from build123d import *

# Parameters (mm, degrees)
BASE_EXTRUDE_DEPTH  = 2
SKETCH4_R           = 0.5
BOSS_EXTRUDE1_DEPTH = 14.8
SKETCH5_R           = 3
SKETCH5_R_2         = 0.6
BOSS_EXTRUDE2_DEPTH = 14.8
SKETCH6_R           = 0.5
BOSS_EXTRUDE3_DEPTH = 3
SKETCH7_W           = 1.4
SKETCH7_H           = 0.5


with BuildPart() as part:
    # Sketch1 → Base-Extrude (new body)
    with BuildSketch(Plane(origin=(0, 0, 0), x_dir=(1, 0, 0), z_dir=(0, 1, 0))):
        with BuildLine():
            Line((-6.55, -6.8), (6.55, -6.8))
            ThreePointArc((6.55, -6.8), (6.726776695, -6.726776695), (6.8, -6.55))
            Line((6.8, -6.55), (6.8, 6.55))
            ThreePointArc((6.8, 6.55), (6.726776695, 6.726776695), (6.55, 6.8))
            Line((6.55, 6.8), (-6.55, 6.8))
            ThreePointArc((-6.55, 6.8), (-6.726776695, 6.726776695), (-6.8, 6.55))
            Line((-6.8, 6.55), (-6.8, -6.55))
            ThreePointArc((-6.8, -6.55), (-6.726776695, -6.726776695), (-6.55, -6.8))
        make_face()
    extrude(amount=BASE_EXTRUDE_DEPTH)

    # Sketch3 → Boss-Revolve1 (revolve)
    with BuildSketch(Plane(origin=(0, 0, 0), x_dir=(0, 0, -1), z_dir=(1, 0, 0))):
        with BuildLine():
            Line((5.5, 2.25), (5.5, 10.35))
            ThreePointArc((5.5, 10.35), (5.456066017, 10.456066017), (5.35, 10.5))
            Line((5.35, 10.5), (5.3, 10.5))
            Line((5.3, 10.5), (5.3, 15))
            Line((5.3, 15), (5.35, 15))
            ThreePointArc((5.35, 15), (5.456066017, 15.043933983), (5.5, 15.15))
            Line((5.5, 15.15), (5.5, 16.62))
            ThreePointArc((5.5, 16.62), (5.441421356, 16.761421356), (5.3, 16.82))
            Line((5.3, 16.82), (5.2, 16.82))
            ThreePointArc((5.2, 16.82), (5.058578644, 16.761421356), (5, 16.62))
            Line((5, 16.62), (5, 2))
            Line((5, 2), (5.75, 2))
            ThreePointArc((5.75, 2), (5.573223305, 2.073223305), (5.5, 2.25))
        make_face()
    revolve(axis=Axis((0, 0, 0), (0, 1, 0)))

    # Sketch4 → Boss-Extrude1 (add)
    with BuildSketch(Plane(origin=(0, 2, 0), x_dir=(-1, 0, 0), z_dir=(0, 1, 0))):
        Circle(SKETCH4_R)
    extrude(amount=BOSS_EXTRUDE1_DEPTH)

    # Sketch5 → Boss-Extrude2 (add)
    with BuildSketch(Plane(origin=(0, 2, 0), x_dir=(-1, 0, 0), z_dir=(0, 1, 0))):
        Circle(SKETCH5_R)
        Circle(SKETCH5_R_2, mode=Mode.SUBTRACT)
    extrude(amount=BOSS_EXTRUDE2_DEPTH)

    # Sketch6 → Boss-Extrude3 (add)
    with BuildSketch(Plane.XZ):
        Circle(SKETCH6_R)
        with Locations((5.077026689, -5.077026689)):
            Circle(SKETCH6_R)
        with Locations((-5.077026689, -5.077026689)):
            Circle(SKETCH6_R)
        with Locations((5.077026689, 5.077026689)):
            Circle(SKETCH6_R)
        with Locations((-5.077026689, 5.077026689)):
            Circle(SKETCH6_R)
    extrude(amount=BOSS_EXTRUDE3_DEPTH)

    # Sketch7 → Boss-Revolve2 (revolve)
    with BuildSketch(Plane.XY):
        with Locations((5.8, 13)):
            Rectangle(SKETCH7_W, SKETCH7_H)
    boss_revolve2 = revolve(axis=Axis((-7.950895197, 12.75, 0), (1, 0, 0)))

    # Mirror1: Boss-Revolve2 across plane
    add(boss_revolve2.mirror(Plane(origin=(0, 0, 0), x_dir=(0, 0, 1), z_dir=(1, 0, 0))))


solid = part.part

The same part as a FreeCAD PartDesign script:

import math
import FreeCAD as App
import Part
import Sketcher

V = App.Vector


def add_polygon(sketch, points):
    """Adds a closed chain of lines whose ends are joined by coincident constraints."""
    first, n = sketch.GeometryCount, len(points)
    for a, b in zip(points, points[1:] + points[:1]):
        sketch.addGeometry(Part.LineSegment(App.Vector(*a, 0), App.Vector(*b, 0)), False)
    for i in range(n):
        sketch.addConstraint(Sketcher.Constraint("Coincident", first + i, 2, first + (i + 1) % n, 1))

doc = App.newDocument("Part")
body = doc.addObject("PartDesign::Body", "Body")

sketch1 = body.newObject("Sketcher::SketchObject", "Sketch")
sketch1.AttachmentSupport = (doc.getObject("XZ_Plane"), [""])
sketch1.MapMode = "FlatFace"
sketch1.addGeometry([
    Part.LineSegment(V(-6.55, 6.8, 0), V(6.55, 6.8, 0)),
    Part.ArcOfCircle(Part.Circle(V(6.55, 6.55, 0), V(0, 0, 1), 0.25), math.radians(0), math.radians(90)),
    Part.LineSegment(V(6.8, 6.55, 0), V(6.8, -6.55, 0)),
    Part.ArcOfCircle(Part.Circle(V(6.55, -6.55, 0), V(0, 0, 1), 0.25), math.radians(-90), math.radians(0)),
    Part.LineSegment(V(6.55, -6.8, 0), V(-6.55, -6.8, 0)),
    Part.ArcOfCircle(Part.Circle(V(-6.55, -6.55, 0), V(0, 0, 1), 0.25), math.radians(-180), math.radians(-90)),
    Part.LineSegment(V(-6.8, -6.55, 0), V(-6.8, 6.55, 0)),
    Part.ArcOfCircle(Part.Circle(V(-6.55, 6.55, 0), V(0, 0, 1), 0.25), math.radians(90), math.radians(180)),
], False)
sketch1.addConstraint([
    Sketcher.Constraint("Tangent", 0, 2, 1, 2),
    Sketcher.Constraint("Tangent", 1, 1, 2, 1),
    Sketcher.Constraint("Tangent", 2, 2, 3, 2),
    Sketcher.Constraint("Tangent", 3, 1, 4, 1),
    Sketcher.Constraint("Tangent", 4, 2, 5, 2),
    Sketcher.Constraint("Tangent", 5, 1, 6, 1),
    Sketcher.Constraint("Tangent", 6, 2, 7, 2),
    Sketcher.Constraint("Tangent", 7, 1, 0, 1),
    Sketcher.Constraint("Horizontal", 0),
    Sketcher.Constraint("Vertical", 2),
    Sketcher.Constraint("Horizontal", 4),
    Sketcher.Constraint("Vertical", 6),
    Sketcher.Constraint("Equal", 1, 3),
    Sketcher.Constraint("Equal", 3, 5),
    Sketcher.Constraint("Equal", 5, 7),
    Sketcher.Constraint("Symmetric", 1, 3, 5, 3, -1, 1),
    Sketcher.Constraint("Equal", 4, 2),
    Sketcher.Constraint("Radius", 1, 0.25),
    Sketcher.Constraint("DistanceX", 0, 1, 0, 2, 13.1),
])
pad1 = body.newObject("PartDesign::Pad", "Pad")
pad1.Profile = sketch1
pad1.Length = 2
pad1.Reversed = True

sketch2 = body.newObject("Sketcher::SketchObject", "Sketch001")
sketch2.AttachmentSupport = (doc.getObject("YZ_Plane"), [""])
sketch2.MapMode = "FlatFace"
sketch2.addGeometry([
    Part.LineSegment(V(2.25, -5.5, 0), V(10.35, -5.5, 0)),
    Part.ArcOfCircle(Part.Circle(V(10.35, -5.35, 0), V(0, 0, 1), 0.15), math.radians(-90), math.radians(0)),
    Part.LineSegment(V(10.5, -5.35, 0), V(10.5, -5.3, 0)),
    Part.LineSegment(V(10.5, -5.3, 0), V(15, -5.3, 0)),
    Part.LineSegment(V(15, -5.3, 0), V(15, -5.35, 0)),
    Part.ArcOfCircle(Part.Circle(V(15.15, -5.35, 0), V(0, 0, 1), 0.15), math.radians(-180), math.radians(-90)),
    Part.LineSegment(V(15.15, -5.5, 0), V(16.62, -5.5, 0)),
    Part.ArcOfCircle(Part.Circle(V(16.62, -5.3, 0), V(0, 0, 1), 0.2), math.radians(-90), math.radians(0)),
    Part.LineSegment(V(16.82, -5.3, 0), V(16.82, -5.2, 0)),
    Part.ArcOfCircle(Part.Circle(V(16.62, -5.2, 0), V(0, 0, 1), 0.2), math.radians(0), math.radians(90)),
    Part.LineSegment(V(16.62, -5, 0), V(2, -5, 0)),
    Part.LineSegment(V(2, -5, 0), V(2, -5.75, 0)),
    Part.ArcOfCircle(Part.Circle(V(2.25, -5.75, 0), V(0, 0, 1), 0.25), math.radians(90), math.radians(180)),
], False)
sketch2.addConstraint([
    Sketcher.Constraint("Tangent", 0, 2, 1, 1),
    Sketcher.Constraint("Tangent", 1, 2, 2, 1),
    Sketcher.Constraint("Coincident", 2, 2, 3, 1),
    Sketcher.Constraint("Coincident", 3, 2, 4, 1),
    Sketcher.Constraint("Tangent", 4, 2, 5, 1),
    Sketcher.Constraint("Tangent", 5, 2, 6, 1),
    Sketcher.Constraint("Tangent", 6, 2, 7, 1),
    Sketcher.Constraint("Tangent", 7, 2, 8, 1),
    Sketcher.Constraint("Tangent", 8, 2, 9, 1),
    Sketcher.Constraint("Tangent", 9, 2, 10, 1),
    Sketcher.Constraint("Coincident", 10, 2, 11, 1),
    Sketcher.Constraint("Tangent", 11, 2, 12, 2),
    Sketcher.Constraint("Tangent", 12, 1, 0, 1),
    Sketcher.Constraint("Horizontal", 0),
    Sketcher.Constraint("Vertical", 2),
    Sketcher.Constraint("Horizontal", 3),
    Sketcher.Constraint("Vertical", 4),
    Sketcher.Constraint("Horizontal", 6),
    Sketcher.Constraint("Vertical", 8),
    Sketcher.Constraint("Horizontal", 10),
    Sketcher.Constraint("Vertical", 11),
    Sketcher.Constraint("Equal", 1, 5),
    Sketcher.Constraint("Equal", 7, 9),
    Sketcher.Constraint("Horizontal", 1, 3, 5, 3),
    Sketcher.Constraint("Horizontal", 7, 3, 2, 2),
    Sketcher.Constraint("Radius", 7, 0.2),
    Sketcher.Constraint("Radius", 1, 0.15),
    Sketcher.Constraint("Radius", 12, 0.25),
    Sketcher.Constraint("DistanceX", 0, 1, 0, 2, 8.1),
    Sketcher.Constraint("DistanceX", 3, 1, 3, 2, 4.5),
    Sketcher.Constraint("DistanceY", 8, 1, 8, 2, 0.1),
    Sketcher.Constraint("DistanceX", -1, 1, 3, 2, 15.0),
    Sketcher.Constraint("DistanceY", 9, 2, -1, 1, 5.0),
    Sketcher.Constraint("DistanceX", 6, 1, 6, 2, 1.47),
])
revolution = body.newObject("PartDesign::Revolution", "Revolution")
revolution.Profile = sketch2
revolution.ReferenceAxis = (sketch2, ["H_Axis"])
revolution.Angle = 360

sketch3 = body.newObject("Sketcher::SketchObject", "Sketch002")
sketch3.AttachmentSupport = (doc.getObject("XZ_Plane"), [""])
sketch3.MapMode = "FlatFace"
sketch3.AttachmentOffset = App.Placement(V(0, 0, -2), App.Rotation())
sketch3.addGeometry(Part.Circle(V(0, 0, 0), V(0, 0, 1), 0.5), False)
sketch3.addConstraint([
    Sketcher.Constraint("Coincident", 0, 3, -1, 1),
    Sketcher.Constraint("Diameter", 0, 1.0),
])
pad2 = body.newObject("PartDesign::Pad", "Pad001")
pad2.Profile = sketch3
pad2.Length = 14.8
pad2.Reversed = True

sketch4 = body.newObject("Sketcher::SketchObject", "Sketch003")
sketch4.AttachmentSupport = (doc.getObject("XZ_Plane"), [""])
sketch4.MapMode = "FlatFace"
sketch4.AttachmentOffset = App.Placement(V(0, 0, -2), App.Rotation())
sketch4.addGeometry([
    Part.Circle(V(0, 0, 0), V(0, 0, 1), 3),
    Part.Circle(V(0, 0, 0), V(0, 0, 1), 0.6),
], False)
sketch4.addConstraint([
    Sketcher.Constraint("Coincident", 0, 3, -1, 1),
    Sketcher.Constraint("Coincident", 1, 3, -1, 1),
    Sketcher.Constraint("Diameter", 0, 6.0),
    Sketcher.Constraint("Diameter", 1, 1.2),
])
pad3 = body.newObject("PartDesign::Pad", "Pad002")
pad3.Profile = sketch4
pad3.Length = 14.8
pad3.Reversed = True

sketch5 = body.newObject("Sketcher::SketchObject", "Sketch004")
sketch5.AttachmentSupport = (doc.getObject("XZ_Plane"), [""])
sketch5.MapMode = "FlatFace"
sketch5.addGeometry([
    Part.Circle(V(0, 0, 0), V(0, 0, 1), 0.5),
    Part.Circle(V(5.1, -5.1, 0), V(0, 0, 1), 0.5),
    Part.Circle(V(-5.1, -5.1, 0), V(0, 0, 1), 0.5),
    Part.Circle(V(5.1, 5.1, 0), V(0, 0, 1), 0.5),
    Part.Circle(V(-5.1, 5.1, 0), V(0, 0, 1), 0.5),
], False)
sketch5.addConstraint([
    Sketcher.Constraint("Coincident", 0, 3, -1, 1),
    Sketcher.Constraint("Equal", 0, 1),
    Sketcher.Constraint("Equal", 1, 2),
    Sketcher.Constraint("Equal", 2, 3),
    Sketcher.Constraint("Equal", 3, 4),
    Sketcher.Constraint("Symmetric", 2, 3, 3, 3, -1, 1),
    Sketcher.Constraint("Symmetric", 1, 3, 4, 3, -1, 1),
    Sketcher.Constraint("Symmetric", 1, 3, 2, 3, -2),
    Sketcher.Constraint("Diameter", 0, 1.0),
    Sketcher.Constraint("DistanceX", -1, 1, 1, 3, 5.077027),
    Sketcher.Constraint("DistanceY", 1, 3, -1, 1, 5.077027),
])
pad4 = body.newObject("PartDesign::Pad", "Pad003")
pad4.Profile = sketch5
pad4.Length = 3

sketch6 = body.newObject("Sketcher::SketchObject", "Sketch005")
sketch6.AttachmentSupport = (doc.getObject("XY_Plane"), [""])
sketch6.MapMode = "FlatFace"
add_polygon(sketch6, [(5.1, 13.2), (5.1, 12.8), (6.5, 12.8), (6.5, 13.2)])
sketch6.addGeometry(Part.LineSegment(V(5.1, 12.8, 0), V(6.5, 12.8, 0)), True)
sketch6.addConstraint([
    Sketcher.Constraint("Vertical", 0),
    Sketcher.Constraint("Horizontal", 1),
    Sketcher.Constraint("Vertical", 2),
    Sketcher.Constraint("Horizontal", 3),
    Sketcher.Constraint("Horizontal", 4),
    Sketcher.Constraint("Coincident", 4, 1, 0, 2),
    Sketcher.Constraint("Vertical", 2, 2, 4, 2),
    Sketcher.Constraint("DistanceX", 1, 1, 1, 2, 1.4),
    Sketcher.Constraint("DistanceY", 0, 2, 0, 1, 0.5),
    Sketcher.Constraint("DistanceX", -1, 1, 0, 2, 5.1),
    Sketcher.Constraint("DistanceY", -1, 1, 0, 2, 12.75),
])
revolution2 = body.newObject("PartDesign::Revolution", "Revolution001")
revolution2.Profile = sketch6
revolution2.ReferenceAxis = (sketch6, ["Axis0"])
revolution2.Angle = 360
doc.recompute()

mirrored = body.newObject("PartDesign::Mirrored", "Mirrored")
mirrored.Originals = [revolution2]
mirrored.MirrorPlane = (doc.getObject("YZ_Plane"), [""])
body.Tip = mirrored

doc.recompute()
